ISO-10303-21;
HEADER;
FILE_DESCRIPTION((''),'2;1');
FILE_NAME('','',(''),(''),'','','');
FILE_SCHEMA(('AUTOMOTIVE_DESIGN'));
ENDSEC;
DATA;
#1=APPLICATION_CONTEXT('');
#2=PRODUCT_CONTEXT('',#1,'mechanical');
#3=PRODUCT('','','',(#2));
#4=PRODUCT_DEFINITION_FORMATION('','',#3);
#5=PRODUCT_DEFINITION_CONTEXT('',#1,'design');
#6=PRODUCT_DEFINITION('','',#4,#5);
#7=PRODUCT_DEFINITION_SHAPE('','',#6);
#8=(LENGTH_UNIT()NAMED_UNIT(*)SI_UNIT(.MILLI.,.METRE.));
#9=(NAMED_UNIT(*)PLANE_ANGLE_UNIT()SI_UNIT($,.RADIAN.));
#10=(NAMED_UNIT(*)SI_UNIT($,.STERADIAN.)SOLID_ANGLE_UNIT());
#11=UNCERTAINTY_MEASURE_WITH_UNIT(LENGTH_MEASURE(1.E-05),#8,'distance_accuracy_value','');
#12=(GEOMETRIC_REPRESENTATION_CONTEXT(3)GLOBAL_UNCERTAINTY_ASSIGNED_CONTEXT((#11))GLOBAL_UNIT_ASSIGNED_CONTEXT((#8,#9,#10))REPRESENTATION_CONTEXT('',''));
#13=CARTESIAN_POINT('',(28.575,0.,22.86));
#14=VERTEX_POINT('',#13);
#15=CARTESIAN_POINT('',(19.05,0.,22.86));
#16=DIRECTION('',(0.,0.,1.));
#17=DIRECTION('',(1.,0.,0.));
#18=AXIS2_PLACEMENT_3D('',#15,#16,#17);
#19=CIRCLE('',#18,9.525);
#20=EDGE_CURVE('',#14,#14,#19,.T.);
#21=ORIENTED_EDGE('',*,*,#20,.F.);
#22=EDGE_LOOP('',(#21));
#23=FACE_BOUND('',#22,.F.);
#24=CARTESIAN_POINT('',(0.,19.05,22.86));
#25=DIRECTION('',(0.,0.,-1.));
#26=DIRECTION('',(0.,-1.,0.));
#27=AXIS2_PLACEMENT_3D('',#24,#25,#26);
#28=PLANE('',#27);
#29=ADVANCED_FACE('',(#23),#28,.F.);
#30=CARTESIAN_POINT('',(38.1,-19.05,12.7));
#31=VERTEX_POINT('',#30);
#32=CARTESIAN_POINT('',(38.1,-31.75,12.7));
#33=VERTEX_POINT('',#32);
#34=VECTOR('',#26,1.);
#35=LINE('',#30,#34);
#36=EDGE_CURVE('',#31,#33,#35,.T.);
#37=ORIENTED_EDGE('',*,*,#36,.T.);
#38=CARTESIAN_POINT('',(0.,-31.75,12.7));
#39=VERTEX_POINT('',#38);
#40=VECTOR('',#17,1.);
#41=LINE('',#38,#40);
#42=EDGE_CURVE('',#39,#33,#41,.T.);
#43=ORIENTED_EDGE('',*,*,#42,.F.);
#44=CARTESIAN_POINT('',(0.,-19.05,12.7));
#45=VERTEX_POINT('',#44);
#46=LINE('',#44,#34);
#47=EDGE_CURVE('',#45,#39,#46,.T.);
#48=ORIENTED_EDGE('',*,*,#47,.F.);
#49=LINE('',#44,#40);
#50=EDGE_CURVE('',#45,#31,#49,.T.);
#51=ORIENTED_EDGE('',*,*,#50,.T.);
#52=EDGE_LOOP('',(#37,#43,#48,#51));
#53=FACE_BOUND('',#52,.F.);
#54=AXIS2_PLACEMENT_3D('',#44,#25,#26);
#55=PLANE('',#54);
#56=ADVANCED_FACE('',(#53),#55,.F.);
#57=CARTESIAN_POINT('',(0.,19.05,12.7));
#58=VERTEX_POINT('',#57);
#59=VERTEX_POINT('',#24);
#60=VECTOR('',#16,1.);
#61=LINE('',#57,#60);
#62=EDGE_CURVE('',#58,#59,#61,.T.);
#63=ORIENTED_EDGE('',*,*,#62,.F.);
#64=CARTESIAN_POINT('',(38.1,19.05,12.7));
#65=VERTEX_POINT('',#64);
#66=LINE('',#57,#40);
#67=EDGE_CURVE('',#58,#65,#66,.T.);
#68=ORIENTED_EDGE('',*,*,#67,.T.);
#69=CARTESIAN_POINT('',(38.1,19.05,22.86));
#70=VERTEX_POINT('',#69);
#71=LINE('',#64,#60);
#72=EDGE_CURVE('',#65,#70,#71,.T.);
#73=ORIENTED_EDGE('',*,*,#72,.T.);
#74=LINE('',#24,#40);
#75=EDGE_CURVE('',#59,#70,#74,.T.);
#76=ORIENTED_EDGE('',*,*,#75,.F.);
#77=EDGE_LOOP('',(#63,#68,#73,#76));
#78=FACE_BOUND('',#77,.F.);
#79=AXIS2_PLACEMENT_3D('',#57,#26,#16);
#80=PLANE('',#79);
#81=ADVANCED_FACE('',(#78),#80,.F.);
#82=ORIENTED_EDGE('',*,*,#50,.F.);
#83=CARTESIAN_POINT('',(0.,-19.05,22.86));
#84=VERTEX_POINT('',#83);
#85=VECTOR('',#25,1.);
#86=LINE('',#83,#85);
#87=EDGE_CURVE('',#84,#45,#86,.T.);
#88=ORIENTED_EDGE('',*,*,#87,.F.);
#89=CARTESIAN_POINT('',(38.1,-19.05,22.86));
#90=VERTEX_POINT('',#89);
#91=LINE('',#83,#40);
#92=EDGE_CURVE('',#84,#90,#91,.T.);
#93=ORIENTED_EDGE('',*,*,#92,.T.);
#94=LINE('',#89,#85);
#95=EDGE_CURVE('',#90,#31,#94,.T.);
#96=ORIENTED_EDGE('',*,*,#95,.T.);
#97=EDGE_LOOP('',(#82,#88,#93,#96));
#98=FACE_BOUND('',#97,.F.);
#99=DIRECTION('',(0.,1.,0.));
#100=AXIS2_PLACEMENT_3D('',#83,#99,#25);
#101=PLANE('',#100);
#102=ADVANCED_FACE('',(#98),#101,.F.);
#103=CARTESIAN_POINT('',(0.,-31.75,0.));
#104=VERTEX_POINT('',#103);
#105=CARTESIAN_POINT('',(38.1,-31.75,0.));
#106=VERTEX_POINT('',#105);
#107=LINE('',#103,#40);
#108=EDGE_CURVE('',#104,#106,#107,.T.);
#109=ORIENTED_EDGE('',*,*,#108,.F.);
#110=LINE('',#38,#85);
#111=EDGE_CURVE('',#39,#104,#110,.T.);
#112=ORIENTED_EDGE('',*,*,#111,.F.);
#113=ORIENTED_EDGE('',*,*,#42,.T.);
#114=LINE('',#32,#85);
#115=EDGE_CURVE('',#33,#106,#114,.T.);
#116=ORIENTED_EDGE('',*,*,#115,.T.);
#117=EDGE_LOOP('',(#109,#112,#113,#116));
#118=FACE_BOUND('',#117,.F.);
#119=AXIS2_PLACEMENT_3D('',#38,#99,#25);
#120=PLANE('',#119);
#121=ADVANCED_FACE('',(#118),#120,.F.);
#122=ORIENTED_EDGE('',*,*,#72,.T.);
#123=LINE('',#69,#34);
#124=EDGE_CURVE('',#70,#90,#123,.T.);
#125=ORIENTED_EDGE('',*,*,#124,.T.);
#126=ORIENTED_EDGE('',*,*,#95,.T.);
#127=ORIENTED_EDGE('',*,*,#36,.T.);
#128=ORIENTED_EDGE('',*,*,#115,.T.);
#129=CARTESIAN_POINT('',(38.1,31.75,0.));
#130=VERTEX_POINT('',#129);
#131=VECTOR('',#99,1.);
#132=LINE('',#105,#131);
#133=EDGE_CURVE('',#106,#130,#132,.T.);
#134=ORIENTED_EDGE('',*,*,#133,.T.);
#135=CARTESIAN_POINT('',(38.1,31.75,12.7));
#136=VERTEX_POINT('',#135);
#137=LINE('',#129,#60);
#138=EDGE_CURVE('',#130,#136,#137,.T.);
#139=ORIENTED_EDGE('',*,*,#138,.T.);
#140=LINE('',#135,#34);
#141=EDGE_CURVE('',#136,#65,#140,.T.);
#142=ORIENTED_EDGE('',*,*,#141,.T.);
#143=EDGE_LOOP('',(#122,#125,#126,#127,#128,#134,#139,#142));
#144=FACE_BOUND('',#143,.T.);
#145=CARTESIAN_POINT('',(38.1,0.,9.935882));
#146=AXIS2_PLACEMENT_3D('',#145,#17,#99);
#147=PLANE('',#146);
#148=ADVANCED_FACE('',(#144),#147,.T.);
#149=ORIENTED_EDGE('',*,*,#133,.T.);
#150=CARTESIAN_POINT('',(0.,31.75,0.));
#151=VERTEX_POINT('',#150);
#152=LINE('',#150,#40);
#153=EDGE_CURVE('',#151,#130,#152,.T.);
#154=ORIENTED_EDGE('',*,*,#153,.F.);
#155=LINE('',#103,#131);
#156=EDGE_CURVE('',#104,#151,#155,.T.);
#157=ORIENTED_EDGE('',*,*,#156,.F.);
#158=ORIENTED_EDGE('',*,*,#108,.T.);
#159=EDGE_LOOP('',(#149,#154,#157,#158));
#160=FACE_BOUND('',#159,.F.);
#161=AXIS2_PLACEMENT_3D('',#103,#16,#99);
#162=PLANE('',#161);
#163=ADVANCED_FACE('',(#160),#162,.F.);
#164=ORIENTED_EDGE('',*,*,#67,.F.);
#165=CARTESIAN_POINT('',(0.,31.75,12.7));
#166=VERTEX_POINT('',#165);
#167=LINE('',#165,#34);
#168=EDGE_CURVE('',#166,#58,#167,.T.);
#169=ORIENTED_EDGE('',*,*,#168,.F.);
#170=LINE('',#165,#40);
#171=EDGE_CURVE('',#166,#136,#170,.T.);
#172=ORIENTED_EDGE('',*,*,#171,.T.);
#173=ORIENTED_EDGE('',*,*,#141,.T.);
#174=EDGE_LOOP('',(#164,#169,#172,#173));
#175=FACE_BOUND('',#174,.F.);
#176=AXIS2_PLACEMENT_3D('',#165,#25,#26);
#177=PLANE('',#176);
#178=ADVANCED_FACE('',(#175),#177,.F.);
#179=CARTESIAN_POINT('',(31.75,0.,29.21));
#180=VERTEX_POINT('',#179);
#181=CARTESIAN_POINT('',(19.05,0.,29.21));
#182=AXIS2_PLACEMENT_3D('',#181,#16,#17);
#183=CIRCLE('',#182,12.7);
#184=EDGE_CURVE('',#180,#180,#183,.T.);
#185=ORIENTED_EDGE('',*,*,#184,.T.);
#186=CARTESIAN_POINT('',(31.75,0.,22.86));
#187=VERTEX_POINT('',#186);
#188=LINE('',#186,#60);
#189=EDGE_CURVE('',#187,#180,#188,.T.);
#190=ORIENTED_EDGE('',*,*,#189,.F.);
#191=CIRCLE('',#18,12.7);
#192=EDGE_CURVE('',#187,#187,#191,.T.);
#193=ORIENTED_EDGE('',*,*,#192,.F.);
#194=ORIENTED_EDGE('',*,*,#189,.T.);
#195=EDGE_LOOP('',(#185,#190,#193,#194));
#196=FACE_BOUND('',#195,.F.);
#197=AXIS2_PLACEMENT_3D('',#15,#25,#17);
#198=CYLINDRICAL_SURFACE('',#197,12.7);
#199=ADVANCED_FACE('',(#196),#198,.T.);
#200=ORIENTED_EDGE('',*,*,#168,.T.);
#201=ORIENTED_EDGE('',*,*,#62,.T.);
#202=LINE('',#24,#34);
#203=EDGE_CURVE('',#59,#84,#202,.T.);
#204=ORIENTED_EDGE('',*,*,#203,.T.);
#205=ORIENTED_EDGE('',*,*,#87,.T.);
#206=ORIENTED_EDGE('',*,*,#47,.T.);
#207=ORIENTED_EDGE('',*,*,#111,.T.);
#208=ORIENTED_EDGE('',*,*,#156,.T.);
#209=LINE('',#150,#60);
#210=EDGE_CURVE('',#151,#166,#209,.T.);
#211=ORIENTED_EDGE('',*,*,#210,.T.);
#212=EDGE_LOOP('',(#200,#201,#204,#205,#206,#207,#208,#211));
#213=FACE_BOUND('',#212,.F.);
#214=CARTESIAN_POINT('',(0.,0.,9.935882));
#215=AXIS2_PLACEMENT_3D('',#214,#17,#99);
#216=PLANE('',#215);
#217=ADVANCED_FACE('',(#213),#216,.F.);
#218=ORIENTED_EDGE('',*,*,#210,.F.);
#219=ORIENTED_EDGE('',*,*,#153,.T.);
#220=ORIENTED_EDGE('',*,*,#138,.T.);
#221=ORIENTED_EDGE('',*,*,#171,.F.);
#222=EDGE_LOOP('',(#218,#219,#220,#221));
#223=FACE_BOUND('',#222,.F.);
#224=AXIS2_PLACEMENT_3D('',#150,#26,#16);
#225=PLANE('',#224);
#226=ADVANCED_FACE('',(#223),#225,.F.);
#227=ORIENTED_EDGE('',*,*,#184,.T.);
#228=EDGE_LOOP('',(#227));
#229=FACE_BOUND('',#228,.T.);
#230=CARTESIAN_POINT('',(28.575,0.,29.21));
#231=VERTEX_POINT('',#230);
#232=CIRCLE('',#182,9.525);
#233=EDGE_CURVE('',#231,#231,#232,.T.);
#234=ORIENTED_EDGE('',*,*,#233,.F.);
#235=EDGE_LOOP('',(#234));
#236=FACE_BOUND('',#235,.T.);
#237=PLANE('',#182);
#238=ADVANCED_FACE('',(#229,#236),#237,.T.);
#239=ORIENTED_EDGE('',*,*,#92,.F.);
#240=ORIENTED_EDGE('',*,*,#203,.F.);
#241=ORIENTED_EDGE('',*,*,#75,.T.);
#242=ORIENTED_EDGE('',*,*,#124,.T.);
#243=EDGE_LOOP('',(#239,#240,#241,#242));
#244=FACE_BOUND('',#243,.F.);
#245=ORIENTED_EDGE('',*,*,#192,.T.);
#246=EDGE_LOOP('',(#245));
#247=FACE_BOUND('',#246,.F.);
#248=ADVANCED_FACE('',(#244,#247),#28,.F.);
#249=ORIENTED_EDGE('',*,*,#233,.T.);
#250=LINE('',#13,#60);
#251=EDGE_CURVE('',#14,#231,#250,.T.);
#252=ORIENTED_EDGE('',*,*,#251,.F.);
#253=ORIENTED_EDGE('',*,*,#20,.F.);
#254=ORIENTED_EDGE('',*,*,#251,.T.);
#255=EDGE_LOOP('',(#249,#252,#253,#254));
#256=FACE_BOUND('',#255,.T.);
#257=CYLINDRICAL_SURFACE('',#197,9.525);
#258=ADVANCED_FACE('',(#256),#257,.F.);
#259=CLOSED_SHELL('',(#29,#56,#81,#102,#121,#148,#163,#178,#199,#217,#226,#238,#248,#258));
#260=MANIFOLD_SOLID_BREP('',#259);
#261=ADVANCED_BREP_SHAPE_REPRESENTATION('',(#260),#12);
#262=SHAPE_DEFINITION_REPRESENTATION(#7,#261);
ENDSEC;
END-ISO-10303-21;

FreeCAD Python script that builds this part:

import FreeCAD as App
import Part
import Sketcher
Q = App.Units.Quantity

doc = App.newDocument("Part")
body = doc.addObject("PartDesign::Body", "Body")

# Sketch on YZ plane
sketch1 = doc.addObject("Sketcher::SketchObject", "Sketch")
body.addObject(sketch1)
sketch1.AttachmentSupport = (doc.YZ_Plane, [""])
sketch1.MapMode = "FlatFace"
sketch1.addGeometry([
    Part.LineSegment(App.Vector(-32, 0, 0), App.Vector(32, 0, 0)),  # 0
    Part.LineSegment(App.Vector(32, 0, 0), App.Vector(32, 13, 0)),  # 1
    Part.LineSegment(App.Vector(32, 13, 0), App.Vector(19, 13, 0)),  # 2
    Part.LineSegment(App.Vector(19, 13, 0), App.Vector(19, 23, 0)),  # 3
    Part.LineSegment(App.Vector(19, 23, 0), App.Vector(-19, 23, 0)),  # 4
    Part.LineSegment(App.Vector(-19, 23, 0), App.Vector(-19, 13, 0)),  # 5
    Part.LineSegment(App.Vector(-19, 13, 0), App.Vector(-32, 13, 0)),  # 6
    Part.LineSegment(App.Vector(-32, 13, 0), App.Vector(-32, 0, 0)),  # 7
], False)
sketch1.addConstraint([
    Sketcher.Constraint("Coincident", 0, 2, 1, 1),
    Sketcher.Constraint("Coincident", 1, 2, 2, 1),
    Sketcher.Constraint("Coincident", 2, 2, 3, 1),
    Sketcher.Constraint("Coincident", 3, 2, 4, 1),
    Sketcher.Constraint("Coincident", 4, 2, 5, 1),
    Sketcher.Constraint("Coincident", 5, 2, 6, 1),
    Sketcher.Constraint("Coincident", 6, 2, 7, 1),
    Sketcher.Constraint("Coincident", 7, 2, 0, 1),
    Sketcher.Constraint("Horizontal", 0),
    Sketcher.Constraint("Vertical", 1),
    Sketcher.Constraint("Horizontal", 2),
    Sketcher.Constraint("Vertical", 3),
    Sketcher.Constraint("Horizontal", 4),
    Sketcher.Constraint("Vertical", 5),
    Sketcher.Constraint("Horizontal", 6),
    Sketcher.Constraint("Vertical", 7),
    Sketcher.Constraint("Symmetric", 0, 2, 7, 2, -1, 1),
    Sketcher.Constraint("Symmetric", 2, 2, 5, 2, -2),
    Sketcher.Constraint("Equal", 6, 1),
    Sketcher.Constraint("DistanceX", 0, 1, 0, 2, Q("2.5 in")),
    Sketcher.Constraint("DistanceX", 2, 2, 2, 1, Q("0.5 in")),
    Sketcher.Constraint("DistanceY", 3, 1, 3, 2, Q("0.4 in")),
])
pad1 = doc.addObject("PartDesign::Pad", "Pad")
body.addObject(pad1)
pad1.Profile = sketch1
pad1.Length = Q("1.5 in")

# Sketch on XY plane
sketch2 = doc.addObject("Sketcher::SketchObject", "Sketch001")
body.addObject(sketch2)
sketch2.AttachmentSupport = (doc.XY_Plane, [""])
sketch2.MapMode = "FlatFace"
sketch2.AttachmentOffset = App.Placement(App.Vector(0, 0, 0.9 * 25.4), App.Rotation())
sketch2.addGeometry([
    Part.Circle(App.Vector(19, 0, 0), App.Vector(0, 0, 1), 13),
    Part.Circle(App.Vector(19, 0, 0), App.Vector(0, 0, 1), 10),
], False)
sketch2.addConstraint([
    Sketcher.Constraint("Coincident", 1, 3, 0, 3),
    Sketcher.Constraint("PointOnObject", 0, 3, -1),
    Sketcher.Constraint("Diameter", 0, Q("1 in")),
    Sketcher.Constraint("Diameter", 1, Q("0.75 in")),
    Sketcher.Constraint("DistanceX", -1, 1, 0, 3, Q("0.75 in")),
])
pad2 = doc.addObject("PartDesign::Pad", "Pad001")
body.addObject(pad2)
pad2.Profile = sketch2
pad2.Length = Q("0.25 in")

doc.recompute()
